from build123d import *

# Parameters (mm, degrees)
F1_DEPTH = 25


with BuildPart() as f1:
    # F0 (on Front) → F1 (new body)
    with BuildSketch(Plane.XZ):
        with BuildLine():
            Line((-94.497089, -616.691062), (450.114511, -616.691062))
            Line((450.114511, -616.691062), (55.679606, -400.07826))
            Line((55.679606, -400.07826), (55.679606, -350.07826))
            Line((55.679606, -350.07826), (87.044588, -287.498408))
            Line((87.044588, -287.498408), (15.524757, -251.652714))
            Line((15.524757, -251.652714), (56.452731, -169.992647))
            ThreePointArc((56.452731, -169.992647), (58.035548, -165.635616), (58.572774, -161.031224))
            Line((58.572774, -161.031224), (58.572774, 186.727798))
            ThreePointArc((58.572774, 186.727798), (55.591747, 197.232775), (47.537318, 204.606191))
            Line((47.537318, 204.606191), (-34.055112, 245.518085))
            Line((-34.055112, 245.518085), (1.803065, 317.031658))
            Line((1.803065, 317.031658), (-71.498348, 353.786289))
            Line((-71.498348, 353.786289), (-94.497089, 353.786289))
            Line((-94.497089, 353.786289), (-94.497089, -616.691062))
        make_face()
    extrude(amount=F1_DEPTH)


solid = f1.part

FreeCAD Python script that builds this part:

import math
import FreeCAD as App
import Part
import Sketcher

V = App.Vector
Q = App.Units.Quantity

doc = App.newDocument("Part")
body = doc.addObject("PartDesign::Body", "Body")

# Sketch on XZ plane
sketch1 = body.newObject("Sketcher::SketchObject", "Sketch")
sketch1.AttachmentSupport = (doc.getObject("XZ_Plane"), [""])
sketch1.MapMode = "FlatFace"
sketch1.addGeometry(Part.LineSegment(V(-94, -617, 0), V(450, -617, 0)), False)
sketch1.addGeometry(Part.LineSegment(V(450, -617, 0), V(56, -400, 0)), False)
sketch1.addGeometry(Part.LineSegment(V(56, -400, 0), V(56, -350, 0)), False)
sketch1.addGeometry(Part.LineSegment(V(56, -350, 0), V(87, -287, 0)), False)
sketch1.addGeometry(Part.LineSegment(V(87, -287, 0), V(16, -252, 0)), False)
sketch1.addGeometry(Part.LineSegment(V(16, -252, 0), V(56, -170, 0)), False)
sketch1.addGeometry(Part.ArcOfCircle(Part.Circle(V(39, -161, 0), V(0, 0, 1), 20), math.radians(-27), math.radians(0)), False)
sketch1.addGeometry(Part.LineSegment(V(59, -161, 0), V(59, 187, 0)), False)
sketch1.addGeometry(Part.ArcOfCircle(Part.Circle(V(39, 187, 0), V(0, 0, 1), 20), math.radians(0), math.radians(63)), False)
sketch1.addGeometry(Part.LineSegment(V(48, 205, 0), V(-34, 246, 0)), False)
sketch1.addGeometry(Part.LineSegment(V(-34, 246, 0), V(2, 317, 0)), False)
sketch1.addGeometry(Part.LineSegment(V(2, 317, 0), V(-71, 354, 0)), False)
sketch1.addGeometry(Part.LineSegment(V(-71, 354, 0), V(-94, 354, 0)), False)
sketch1.addGeometry(Part.LineSegment(V(-94, 354, 0), V(-94, -617, 0)), False)
sketch1.addConstraint(Sketcher.Constraint("Coincident", 0, 2, 1, 1))
sketch1.addConstraint(Sketcher.Constraint("Coincident", 1, 2, 2, 1))
sketch1.addConstraint(Sketcher.Constraint("Coincident", 2, 2, 3, 1))
sketch1.addConstraint(Sketcher.Constraint("Coincident", 3, 2, 4, 1))
sketch1.addConstraint(Sketcher.Constraint("Coincident", 4, 2, 5, 1))
sketch1.addConstraint(Sketcher.Constraint("Tangent", 5, 2, 6, 1))
sketch1.addConstraint(Sketcher.Constraint("Tangent", 6, 2, 7, 1))
sketch1.addConstraint(Sketcher.Constraint("Tangent", 7, 2, 8, 1))
sketch1.addConstraint(Sketcher.Constraint("Tangent", 8, 2, 9, 1))
sketch1.addConstraint(Sketcher.Constraint("Coincident", 9, 2, 10, 1))
sketch1.addConstraint(Sketcher.Constraint("Coincident", 10, 2, 11, 1))
sketch1.addConstraint(Sketcher.Constraint("Coincident", 11, 2, 12, 1))
sketch1.addConstraint(Sketcher.Constraint("Coincident", 12, 2, 13, 1))
sketch1.addConstraint(Sketcher.Constraint("Coincident", 13, 2, 0, 1))
sketch1.addConstraint(Sketcher.Constraint("Horizontal", 0))
sketch1.addConstraint(Sketcher.Constraint("Vertical", 2))
sketch1.addConstraint(Sketcher.Constraint("Vertical", 7))
sketch1.addConstraint(Sketcher.Constraint("Horizontal", 12))
sketch1.addConstraint(Sketcher.Constraint("Vertical", 13))
sketch1.addConstraint(Sketcher.Constraint("Perpendicular", 3, 4))
sketch1.addConstraint(Sketcher.Constraint("Perpendicular", 4, 5))
sketch1.addConstraint(Sketcher.Constraint("Perpendicular", 9, 10))
sketch1.addConstraint(Sketcher.Constraint("Perpendicular", 10, 11))
sketch1.addConstraint(Sketcher.Constraint("Equal", 4, 10))
sketch1.addConstraint(Sketcher.Constraint("Radius", 8, 20.000001))
sketch1.addConstraint(Sketcher.Constraint("DistanceY", 2, 1, 2, 2, 50.0))
sketch1.addConstraint(Sketcher.Constraint("Distance", 1, 450.0))
sketch1.addConstraint(Sketcher.Constraint("Distance", 3, 70.0))
sketch1.addConstraint(Sketcher.Constraint("Distance", 4, 80.0))
sketch1.addConstraint(Sketcher.Constraint("Distance", 11, 82.0))
sketch1.addConstraint(Sketcher.Constraint("Angle", 3, Q("63.38 deg")))
sketch1.addConstraint(Sketcher.Constraint("Angle", 9, Q("153.37 deg")))
sketch1.addConstraint(Sketcher.Constraint("DistanceX", 0, 1, 0, 2, 544.6116))
sketch1.addConstraint(Sketcher.Constraint("Radius", 6, 19.999986))
sketch1.addConstraint(Sketcher.Constraint("Distance", 9, 91.274902))
sketch1.addConstraint(Sketcher.Constraint("DistanceX", 12, 2, 12, 1, 22.998741))
sketch1.addConstraint(Sketcher.Constraint("DistanceY", 7, 1, 7, 2, 347.759022))
sketch1.addConstraint(Sketcher.Constraint("DistanceY", 13, 2, 13, 1, 970.477351))
sketch1.addConstraint(Sketcher.Constraint("DistanceY", -1, 1, 7, 2, 186.727798))
sketch1.addConstraint(Sketcher.Constraint("DistanceX", -1, 1, 6, 3, 38.572788))
pad1 = body.newObject("PartDesign::Pad", "Pad")
pad1.Profile = sketch1
pad1.Length = 25

doc.recompute()
